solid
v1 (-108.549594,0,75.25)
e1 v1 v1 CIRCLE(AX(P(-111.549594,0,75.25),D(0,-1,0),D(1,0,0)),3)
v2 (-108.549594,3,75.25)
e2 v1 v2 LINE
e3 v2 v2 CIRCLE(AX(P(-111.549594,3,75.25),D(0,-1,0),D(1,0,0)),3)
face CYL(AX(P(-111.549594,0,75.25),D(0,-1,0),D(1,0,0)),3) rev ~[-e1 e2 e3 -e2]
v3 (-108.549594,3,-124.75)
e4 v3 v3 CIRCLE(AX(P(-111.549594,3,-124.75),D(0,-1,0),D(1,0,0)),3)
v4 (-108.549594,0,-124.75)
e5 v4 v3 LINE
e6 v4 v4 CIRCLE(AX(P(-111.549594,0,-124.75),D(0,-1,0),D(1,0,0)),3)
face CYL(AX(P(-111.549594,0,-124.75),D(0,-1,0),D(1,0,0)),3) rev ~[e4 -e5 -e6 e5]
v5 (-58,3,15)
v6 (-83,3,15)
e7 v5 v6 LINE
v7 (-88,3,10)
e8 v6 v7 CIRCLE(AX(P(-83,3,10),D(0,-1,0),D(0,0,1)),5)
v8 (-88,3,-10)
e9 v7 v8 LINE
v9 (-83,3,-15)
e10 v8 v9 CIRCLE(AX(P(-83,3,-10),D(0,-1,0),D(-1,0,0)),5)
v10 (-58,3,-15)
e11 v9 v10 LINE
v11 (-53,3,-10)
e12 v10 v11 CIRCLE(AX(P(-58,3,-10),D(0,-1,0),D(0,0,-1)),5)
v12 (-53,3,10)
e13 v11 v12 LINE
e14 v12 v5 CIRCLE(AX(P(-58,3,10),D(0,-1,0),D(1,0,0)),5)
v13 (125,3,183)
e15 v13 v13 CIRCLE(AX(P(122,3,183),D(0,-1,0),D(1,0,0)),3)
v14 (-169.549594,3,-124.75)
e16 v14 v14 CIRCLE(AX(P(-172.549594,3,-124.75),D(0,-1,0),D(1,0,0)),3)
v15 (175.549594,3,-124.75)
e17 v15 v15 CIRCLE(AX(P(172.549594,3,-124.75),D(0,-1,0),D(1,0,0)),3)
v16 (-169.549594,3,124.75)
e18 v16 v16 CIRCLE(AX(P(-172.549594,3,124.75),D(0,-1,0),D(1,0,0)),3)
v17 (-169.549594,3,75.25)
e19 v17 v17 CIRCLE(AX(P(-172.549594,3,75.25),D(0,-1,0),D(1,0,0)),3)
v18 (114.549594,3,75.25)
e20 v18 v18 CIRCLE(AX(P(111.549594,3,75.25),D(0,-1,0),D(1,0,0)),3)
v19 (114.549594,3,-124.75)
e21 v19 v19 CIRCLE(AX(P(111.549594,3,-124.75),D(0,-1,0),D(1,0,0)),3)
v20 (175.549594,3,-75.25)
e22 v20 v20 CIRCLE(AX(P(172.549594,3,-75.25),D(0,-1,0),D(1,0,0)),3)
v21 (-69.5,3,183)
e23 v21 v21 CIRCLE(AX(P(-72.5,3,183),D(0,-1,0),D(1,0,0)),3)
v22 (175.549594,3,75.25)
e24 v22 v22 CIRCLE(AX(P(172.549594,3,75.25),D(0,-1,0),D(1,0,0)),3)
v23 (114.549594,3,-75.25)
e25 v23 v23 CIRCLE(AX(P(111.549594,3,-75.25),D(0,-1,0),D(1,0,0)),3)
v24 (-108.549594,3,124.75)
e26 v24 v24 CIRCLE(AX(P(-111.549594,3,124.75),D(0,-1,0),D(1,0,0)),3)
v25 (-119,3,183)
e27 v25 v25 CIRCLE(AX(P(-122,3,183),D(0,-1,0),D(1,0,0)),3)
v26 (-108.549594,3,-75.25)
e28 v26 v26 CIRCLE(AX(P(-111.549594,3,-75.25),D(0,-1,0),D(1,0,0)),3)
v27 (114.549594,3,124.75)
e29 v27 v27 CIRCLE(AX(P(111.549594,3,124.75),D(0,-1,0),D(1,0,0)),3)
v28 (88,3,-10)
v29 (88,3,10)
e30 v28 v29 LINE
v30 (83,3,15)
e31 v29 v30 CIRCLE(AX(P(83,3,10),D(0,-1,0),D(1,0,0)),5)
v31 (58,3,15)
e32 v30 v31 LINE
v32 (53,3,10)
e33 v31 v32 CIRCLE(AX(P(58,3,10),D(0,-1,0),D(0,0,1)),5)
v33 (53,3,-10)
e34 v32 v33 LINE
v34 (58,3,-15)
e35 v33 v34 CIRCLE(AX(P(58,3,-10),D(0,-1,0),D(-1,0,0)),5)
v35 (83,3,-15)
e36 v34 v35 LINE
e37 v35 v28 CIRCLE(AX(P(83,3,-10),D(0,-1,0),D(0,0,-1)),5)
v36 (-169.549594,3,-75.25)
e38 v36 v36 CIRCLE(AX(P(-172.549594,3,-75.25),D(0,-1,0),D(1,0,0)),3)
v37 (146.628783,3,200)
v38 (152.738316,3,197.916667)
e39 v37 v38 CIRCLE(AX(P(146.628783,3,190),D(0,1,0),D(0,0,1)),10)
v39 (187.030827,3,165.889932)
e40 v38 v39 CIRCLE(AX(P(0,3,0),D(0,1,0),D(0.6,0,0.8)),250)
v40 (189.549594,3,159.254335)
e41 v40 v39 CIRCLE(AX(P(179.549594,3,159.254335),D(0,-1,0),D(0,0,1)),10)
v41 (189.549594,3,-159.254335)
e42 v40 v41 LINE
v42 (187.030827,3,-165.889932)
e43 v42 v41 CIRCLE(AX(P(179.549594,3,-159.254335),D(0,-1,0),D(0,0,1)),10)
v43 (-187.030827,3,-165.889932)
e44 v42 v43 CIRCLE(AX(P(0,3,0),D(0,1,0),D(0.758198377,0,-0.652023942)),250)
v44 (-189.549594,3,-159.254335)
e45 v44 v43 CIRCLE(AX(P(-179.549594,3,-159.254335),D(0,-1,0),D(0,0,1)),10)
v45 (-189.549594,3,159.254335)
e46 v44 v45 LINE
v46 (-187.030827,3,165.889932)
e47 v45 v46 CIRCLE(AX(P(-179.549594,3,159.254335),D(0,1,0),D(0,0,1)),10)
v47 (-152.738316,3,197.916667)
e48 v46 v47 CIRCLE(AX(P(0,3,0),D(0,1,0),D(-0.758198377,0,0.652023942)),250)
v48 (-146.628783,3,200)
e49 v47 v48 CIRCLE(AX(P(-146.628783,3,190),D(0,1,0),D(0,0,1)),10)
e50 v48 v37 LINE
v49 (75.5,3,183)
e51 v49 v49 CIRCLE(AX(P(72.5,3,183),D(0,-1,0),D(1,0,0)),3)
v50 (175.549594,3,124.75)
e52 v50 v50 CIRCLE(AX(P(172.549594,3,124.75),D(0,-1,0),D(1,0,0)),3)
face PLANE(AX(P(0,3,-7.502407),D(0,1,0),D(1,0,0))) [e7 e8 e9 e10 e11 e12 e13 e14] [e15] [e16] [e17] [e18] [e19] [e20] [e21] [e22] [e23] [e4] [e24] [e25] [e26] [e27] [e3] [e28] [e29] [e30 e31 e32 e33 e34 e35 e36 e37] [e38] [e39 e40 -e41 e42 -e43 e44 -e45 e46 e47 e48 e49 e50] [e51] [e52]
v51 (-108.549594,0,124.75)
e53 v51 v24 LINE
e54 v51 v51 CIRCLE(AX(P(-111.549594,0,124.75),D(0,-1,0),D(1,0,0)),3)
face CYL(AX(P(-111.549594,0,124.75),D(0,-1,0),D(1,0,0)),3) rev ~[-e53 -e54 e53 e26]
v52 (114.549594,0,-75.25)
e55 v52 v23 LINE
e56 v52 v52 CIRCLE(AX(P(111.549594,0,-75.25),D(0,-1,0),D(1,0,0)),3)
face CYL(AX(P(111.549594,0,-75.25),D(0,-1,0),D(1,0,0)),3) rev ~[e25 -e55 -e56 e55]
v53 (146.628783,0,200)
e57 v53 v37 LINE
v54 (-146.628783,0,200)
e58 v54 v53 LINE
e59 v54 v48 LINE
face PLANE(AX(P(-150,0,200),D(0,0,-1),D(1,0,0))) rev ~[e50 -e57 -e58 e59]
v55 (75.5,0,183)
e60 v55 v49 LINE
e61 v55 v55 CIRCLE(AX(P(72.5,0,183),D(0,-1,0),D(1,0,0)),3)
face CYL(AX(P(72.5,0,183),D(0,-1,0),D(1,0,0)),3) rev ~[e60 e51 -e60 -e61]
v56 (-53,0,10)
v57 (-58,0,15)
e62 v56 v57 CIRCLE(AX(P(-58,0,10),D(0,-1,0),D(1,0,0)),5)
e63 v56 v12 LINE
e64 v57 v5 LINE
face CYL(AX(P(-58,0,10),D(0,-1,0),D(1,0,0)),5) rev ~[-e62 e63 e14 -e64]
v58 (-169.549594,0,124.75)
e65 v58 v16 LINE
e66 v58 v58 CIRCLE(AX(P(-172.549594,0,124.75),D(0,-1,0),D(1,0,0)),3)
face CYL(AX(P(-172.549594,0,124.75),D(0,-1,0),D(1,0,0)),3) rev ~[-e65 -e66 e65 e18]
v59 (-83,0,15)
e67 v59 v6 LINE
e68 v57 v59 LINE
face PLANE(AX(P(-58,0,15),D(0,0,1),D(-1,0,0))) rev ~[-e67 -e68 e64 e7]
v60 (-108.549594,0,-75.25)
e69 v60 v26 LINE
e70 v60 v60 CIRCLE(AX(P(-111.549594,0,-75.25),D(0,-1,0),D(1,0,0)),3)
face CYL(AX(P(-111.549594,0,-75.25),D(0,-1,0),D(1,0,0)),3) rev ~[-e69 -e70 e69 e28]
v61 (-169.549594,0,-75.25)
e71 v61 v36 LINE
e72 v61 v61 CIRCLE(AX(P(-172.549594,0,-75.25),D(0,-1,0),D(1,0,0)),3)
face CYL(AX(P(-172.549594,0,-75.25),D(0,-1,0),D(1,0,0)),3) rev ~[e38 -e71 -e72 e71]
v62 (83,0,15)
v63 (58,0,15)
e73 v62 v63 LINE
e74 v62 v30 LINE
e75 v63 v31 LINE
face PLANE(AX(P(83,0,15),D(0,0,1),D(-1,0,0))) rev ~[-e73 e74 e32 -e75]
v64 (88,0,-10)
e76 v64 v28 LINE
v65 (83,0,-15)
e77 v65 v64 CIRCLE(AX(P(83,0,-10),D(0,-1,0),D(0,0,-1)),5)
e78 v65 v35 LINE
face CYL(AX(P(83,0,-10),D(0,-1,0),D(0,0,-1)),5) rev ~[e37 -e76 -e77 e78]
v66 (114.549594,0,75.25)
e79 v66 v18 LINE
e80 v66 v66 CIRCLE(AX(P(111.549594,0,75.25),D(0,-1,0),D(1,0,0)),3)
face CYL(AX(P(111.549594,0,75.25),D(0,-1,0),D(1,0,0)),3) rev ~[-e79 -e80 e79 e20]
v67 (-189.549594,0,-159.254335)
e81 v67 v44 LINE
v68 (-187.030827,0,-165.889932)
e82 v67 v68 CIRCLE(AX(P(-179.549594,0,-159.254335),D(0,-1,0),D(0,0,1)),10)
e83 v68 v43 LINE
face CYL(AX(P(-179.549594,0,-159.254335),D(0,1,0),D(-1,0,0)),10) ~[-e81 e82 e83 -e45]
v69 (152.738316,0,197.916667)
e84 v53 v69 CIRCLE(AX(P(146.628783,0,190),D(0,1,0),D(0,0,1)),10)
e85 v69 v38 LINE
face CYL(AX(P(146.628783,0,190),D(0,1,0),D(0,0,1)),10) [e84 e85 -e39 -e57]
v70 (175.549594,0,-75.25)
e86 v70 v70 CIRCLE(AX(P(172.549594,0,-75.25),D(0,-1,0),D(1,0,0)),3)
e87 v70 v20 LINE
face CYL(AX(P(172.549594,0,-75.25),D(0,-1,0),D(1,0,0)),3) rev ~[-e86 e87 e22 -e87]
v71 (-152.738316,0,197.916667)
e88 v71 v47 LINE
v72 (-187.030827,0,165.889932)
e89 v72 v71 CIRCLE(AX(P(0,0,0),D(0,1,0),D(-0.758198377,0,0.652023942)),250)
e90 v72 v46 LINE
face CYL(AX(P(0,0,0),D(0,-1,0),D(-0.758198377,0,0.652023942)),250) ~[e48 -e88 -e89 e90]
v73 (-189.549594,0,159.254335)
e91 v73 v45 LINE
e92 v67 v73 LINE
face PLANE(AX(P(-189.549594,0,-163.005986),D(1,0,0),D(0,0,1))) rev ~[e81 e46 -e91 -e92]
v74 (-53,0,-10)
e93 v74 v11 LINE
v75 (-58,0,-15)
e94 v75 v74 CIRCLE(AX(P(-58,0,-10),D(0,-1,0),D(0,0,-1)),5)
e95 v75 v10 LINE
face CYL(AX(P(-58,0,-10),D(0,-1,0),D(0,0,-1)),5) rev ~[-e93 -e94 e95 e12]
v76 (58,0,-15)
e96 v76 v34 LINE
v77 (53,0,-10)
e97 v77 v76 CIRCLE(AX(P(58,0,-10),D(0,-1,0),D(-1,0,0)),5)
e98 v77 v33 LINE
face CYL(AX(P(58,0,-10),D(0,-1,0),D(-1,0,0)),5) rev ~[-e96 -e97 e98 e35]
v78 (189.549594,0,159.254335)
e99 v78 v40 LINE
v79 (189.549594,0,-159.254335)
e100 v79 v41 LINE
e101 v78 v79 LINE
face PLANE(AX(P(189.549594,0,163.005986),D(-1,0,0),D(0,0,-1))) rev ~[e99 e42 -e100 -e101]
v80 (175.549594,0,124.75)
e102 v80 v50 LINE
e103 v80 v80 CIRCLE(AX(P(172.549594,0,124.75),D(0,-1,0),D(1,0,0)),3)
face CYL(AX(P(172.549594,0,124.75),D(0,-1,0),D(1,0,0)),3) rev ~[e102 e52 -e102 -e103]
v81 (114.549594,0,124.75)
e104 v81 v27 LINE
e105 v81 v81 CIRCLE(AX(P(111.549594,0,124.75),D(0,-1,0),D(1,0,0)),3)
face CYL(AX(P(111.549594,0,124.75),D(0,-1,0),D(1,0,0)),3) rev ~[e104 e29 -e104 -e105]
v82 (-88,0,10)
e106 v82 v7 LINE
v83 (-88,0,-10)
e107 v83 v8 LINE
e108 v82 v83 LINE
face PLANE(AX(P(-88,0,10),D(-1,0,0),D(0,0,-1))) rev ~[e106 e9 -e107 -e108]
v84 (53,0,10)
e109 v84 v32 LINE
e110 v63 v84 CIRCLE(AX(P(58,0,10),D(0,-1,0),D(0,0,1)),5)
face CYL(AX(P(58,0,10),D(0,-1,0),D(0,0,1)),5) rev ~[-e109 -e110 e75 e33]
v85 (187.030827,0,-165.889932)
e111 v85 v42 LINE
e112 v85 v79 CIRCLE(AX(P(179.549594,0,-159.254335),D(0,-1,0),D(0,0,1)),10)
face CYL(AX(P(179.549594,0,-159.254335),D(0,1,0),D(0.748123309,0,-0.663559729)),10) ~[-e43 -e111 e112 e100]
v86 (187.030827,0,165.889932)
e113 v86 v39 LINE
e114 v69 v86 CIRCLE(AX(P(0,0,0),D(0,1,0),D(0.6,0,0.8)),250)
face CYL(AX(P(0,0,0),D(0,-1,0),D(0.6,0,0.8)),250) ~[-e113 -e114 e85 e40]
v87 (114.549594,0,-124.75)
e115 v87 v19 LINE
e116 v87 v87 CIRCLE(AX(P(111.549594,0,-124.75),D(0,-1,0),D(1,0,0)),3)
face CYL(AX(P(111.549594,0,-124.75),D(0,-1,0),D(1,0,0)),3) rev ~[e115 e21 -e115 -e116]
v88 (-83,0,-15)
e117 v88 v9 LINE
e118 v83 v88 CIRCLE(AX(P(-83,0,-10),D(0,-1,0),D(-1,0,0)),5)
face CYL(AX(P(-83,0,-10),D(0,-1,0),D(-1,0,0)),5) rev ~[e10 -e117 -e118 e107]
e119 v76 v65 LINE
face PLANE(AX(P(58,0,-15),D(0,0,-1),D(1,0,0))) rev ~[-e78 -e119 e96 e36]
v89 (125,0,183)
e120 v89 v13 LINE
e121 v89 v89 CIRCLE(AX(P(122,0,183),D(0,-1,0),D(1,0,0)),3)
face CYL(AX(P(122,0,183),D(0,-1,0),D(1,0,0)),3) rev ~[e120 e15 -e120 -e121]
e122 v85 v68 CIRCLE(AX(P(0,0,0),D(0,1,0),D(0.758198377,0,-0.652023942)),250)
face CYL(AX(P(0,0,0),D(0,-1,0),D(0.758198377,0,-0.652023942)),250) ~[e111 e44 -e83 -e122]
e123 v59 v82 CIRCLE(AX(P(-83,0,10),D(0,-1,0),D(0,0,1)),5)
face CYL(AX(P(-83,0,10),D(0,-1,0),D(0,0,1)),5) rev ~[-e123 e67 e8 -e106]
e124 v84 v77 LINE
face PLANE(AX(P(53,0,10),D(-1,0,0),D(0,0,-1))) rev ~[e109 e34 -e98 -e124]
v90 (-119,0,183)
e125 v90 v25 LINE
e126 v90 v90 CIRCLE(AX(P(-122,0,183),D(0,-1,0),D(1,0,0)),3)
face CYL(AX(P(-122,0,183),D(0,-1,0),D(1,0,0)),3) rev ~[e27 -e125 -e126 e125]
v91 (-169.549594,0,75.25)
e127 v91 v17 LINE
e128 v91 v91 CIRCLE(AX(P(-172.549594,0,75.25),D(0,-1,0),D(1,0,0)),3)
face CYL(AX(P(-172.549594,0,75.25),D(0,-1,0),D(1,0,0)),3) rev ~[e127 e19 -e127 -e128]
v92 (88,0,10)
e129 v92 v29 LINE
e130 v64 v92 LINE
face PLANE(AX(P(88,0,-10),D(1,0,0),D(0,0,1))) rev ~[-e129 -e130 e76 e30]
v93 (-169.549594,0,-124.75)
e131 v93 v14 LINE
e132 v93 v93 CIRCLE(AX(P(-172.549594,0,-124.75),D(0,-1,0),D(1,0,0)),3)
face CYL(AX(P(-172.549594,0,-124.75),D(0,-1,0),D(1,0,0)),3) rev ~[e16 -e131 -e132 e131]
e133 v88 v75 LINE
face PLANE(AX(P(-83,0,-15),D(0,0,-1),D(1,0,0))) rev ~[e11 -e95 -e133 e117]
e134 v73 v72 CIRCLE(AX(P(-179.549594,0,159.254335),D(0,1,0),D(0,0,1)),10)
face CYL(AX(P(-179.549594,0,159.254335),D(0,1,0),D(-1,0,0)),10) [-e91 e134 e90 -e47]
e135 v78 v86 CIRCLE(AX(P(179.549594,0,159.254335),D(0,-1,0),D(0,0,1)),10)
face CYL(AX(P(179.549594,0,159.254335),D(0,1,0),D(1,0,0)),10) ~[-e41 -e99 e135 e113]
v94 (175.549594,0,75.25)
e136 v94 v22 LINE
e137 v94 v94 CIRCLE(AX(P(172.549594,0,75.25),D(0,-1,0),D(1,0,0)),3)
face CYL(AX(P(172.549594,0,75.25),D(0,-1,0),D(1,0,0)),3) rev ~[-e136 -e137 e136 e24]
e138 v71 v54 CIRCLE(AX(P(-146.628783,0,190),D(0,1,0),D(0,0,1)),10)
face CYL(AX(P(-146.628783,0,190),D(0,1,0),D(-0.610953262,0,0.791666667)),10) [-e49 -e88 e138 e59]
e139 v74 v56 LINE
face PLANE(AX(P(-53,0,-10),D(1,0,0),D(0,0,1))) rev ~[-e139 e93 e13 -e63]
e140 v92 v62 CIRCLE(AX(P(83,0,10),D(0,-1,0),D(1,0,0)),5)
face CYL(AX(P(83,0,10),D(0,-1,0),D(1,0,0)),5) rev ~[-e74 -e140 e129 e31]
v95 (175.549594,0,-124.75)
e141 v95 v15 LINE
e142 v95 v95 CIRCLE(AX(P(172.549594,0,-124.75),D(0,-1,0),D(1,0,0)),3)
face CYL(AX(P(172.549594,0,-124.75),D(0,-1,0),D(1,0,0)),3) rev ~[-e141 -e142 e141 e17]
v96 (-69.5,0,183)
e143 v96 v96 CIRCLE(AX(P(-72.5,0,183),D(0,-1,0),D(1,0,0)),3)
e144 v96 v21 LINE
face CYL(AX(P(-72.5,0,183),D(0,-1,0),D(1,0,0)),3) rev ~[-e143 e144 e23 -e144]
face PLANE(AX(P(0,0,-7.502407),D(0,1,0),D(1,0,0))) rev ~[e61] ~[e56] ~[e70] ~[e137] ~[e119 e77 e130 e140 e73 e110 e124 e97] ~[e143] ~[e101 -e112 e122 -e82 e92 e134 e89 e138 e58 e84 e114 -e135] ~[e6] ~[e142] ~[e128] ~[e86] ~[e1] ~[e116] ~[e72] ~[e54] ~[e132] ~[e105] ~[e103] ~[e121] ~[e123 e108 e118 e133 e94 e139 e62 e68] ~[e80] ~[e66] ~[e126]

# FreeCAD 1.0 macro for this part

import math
import FreeCAD as App
import Part
import Sketcher

V = App.Vector


def edges_at(feature, points):
    """Names of the edges that pass closest to the given points."""
    edges = feature.Shape.Edges
    near = lambda p: min(range(len(edges)), key=lambda i: edges[i].distToShape(Part.Vertex(*p))[0])
    return sorted({f"Edge{near(p) + 1}" for p in points})

doc = App.newDocument("Part")
body = doc.addObject("PartDesign::Body", "Body")

sketch1 = doc.addObject("Sketcher::SketchObject", "Sketch")
body.addObject(sketch1)
sketch1.AttachmentSupport = (doc.XZ_Plane, [""])
sketch1.MapMode = "FlatFace"
sketch1.addGeometry([
    Part.LineSegment(V(-189.549594, -163.005986, 0), V(-189.549594, 163.005986, 0)),
    Part.ArcOfCircle(Part.Circle(V(0, 0, 0), V(0, 0, 1), 250), math.radians(126.869898), math.radians(139.305627)),
    Part.LineSegment(V(-150, 200, 0), V(150, 200, 0)),
    Part.ArcOfCircle(Part.Circle(V(0, 0, 0), V(0, 0, 1), 250), math.radians(40.694373), math.radians(53.130102)),
    Part.LineSegment(V(189.549594, 163.005986, 0), V(189.549594, -163.005986, 0)),
    Part.ArcOfCircle(Part.Circle(V(0, 0, 0), V(0, 0, 1), 250), math.radians(-139.305627), math.radians(-40.694373)),
    Part.LineSegment(V(-58, 15, 0), V(-83, 15, 0)),
    Part.ArcOfCircle(Part.Circle(V(-83, 10, 0), V(0, 0, 1), 5), math.radians(90), math.radians(180)),
    Part.LineSegment(V(-88, 10, 0), V(-88, -10, 0)),
    Part.ArcOfCircle(Part.Circle(V(-83, -10, 0), V(0, 0, 1), 5), math.radians(180), math.radians(270)),
    Part.LineSegment(V(-83, -15, 0), V(-58, -15, 0)),
    Part.ArcOfCircle(Part.Circle(V(-58, -10, 0), V(0, 0, 1), 5), math.radians(-90), math.radians(0)),
    Part.LineSegment(V(-53, -10, 0), V(-53, 10, 0)),
    Part.ArcOfCircle(Part.Circle(V(-58, 10, 0), V(0, 0, 1), 5), math.radians(0), math.radians(90)),
    Part.ArcOfCircle(Part.Circle(V(58, 10, 0), V(0, 0, 1), 5), math.radians(90), math.radians(180)),
    Part.LineSegment(V(53, 10, 0), V(53, -10, 0)),
    Part.ArcOfCircle(Part.Circle(V(58, -10, 0), V(0, 0, 1), 5), math.radians(180), math.radians(270)),
    Part.LineSegment(V(58, -15, 0), V(83, -15, 0)),
    Part.ArcOfCircle(Part.Circle(V(83, -10, 0), V(0, 0, 1), 5), math.radians(-90), math.radians(0)),
    Part.LineSegment(V(88, -10, 0), V(88, 10, 0)),
    Part.ArcOfCircle(Part.Circle(V(83, 10, 0), V(0, 0, 1), 5), math.radians(0), math.radians(90)),
    Part.LineSegment(V(83, 15, 0), V(58, 15, 0)),
], False)
sketch1.addConstraint([
    Sketcher.Constraint("Coincident", 0, 2, 1, 2),
    Sketcher.Constraint("Coincident", 1, 1, 2, 1),
    Sketcher.Constraint("Coincident", 2, 2, 3, 2),
    Sketcher.Constraint("Coincident", 3, 1, 4, 1),
    Sketcher.Constraint("Coincident", 4, 2, 5, 2),
    Sketcher.Constraint("Coincident", 5, 1, 0, 1),
    Sketcher.Constraint("Tangent", 6, 2, 7, 1),
    Sketcher.Constraint("Tangent", 7, 2, 8, 1),
    Sketcher.Constraint("Tangent", 8, 2, 9, 1),
    Sketcher.Constraint("Tangent", 9, 2, 10, 1),
    Sketcher.Constraint("Tangent", 10, 2, 11, 1),
    Sketcher.Constraint("Tangent", 11, 2, 12, 1),
    Sketcher.Constraint("Tangent", 12, 2, 13, 1),
    Sketcher.Constraint("Tangent", 13, 2, 6, 1),
    Sketcher.Constraint("Tangent", 14, 2, 15, 1),
    Sketcher.Constraint("Tangent", 15, 2, 16, 1),
    Sketcher.Constraint("Tangent", 16, 2, 17, 1),
    Sketcher.Constraint("Tangent", 17, 2, 18, 1),
    Sketcher.Constraint("Tangent", 18, 2, 19, 1),
    Sketcher.Constraint("Tangent", 19, 2, 20, 1),
    Sketcher.Constraint("Tangent", 20, 2, 21, 1),
    Sketcher.Constraint("Tangent", 21, 2, 14, 1),
    Sketcher.Constraint("Vertical", 0),
    Sketcher.Constraint("Horizontal", 2),
    Sketcher.Constraint("Vertical", 4),
    Sketcher.Constraint("Horizontal", 6),
    Sketcher.Constraint("Vertical", 8),
    Sketcher.Constraint("Horizontal", 10),
    Sketcher.Constraint("Vertical", 12),
    Sketcher.Constraint("Vertical", 15),
    Sketcher.Constraint("Horizontal", 17),
    Sketcher.Constraint("Vertical", 19),
    Sketcher.Constraint("Horizontal", 21),
    Sketcher.Constraint("Coincident", 1, 3, -1, 1),
    Sketcher.Constraint("Coincident", 3, 3, -1, 1),
    Sketcher.Constraint("Coincident", 5, 3, -1, 1),
    Sketcher.Constraint("Equal", 1, 3),
    Sketcher.Constraint("Equal", 3, 5),
    Sketcher.Constraint("Equal", 7, 9),
    Sketcher.Constraint("Equal", 9, 11),
    Sketcher.Constraint("Equal", 11, 13),
    Sketcher.Constraint("Equal", 13, 14),
    Sketcher.Constraint("Equal", 14, 16),
    Sketcher.Constraint("Equal", 16, 18),
    Sketcher.Constraint("Equal", 18, 20),
    Sketcher.Constraint("Symmetric", 11, 3, 14, 3, -1, 1),
    Sketcher.Constraint("Symmetric", 7, 3, 18, 3, -1, 1),
    Sketcher.Constraint("Horizontal", 13, 3, 14, 3),
    Sketcher.Constraint("Horizontal", 0, 2, 3, 1),
    Sketcher.Constraint("Radius", 1, 250.0),
    Sketcher.Constraint("Radius", 7, 5.0),
    Sketcher.Constraint("DistanceX", 2, 1, 2, 2, 300.0),
    Sketcher.Constraint("DistanceX", 6, 2, 6, 1, 25.0),
    Sketcher.Constraint("DistanceY", 8, 2, 8, 1, 20.0),
    Sketcher.Constraint("DistanceX", 7, 3, -1, 1, 83.0),
    Sketcher.Constraint("DistanceY", 0, 1, 0, 2, 326.011971),
])
pad1 = doc.addObject("PartDesign::Pad", "Pad")
body.addObject(pad1)
pad1.Profile = sketch1
pad1.Length = 3
pad1.Reversed = True
doc.recompute()

fillet = doc.addObject("PartDesign::Fillet", "Fillet")
body.addObject(fillet)
fillet.Base = (pad1, edges_at(pad1, [
    (189.55, 1.5, 163.006),
    (150, 1.5, 200),
    (-150, 1.5, 200),
    (-189.55, 1.5, 163.006),
    (-189.55, 1.5, -163.006),
    (189.55, 1.5, -163.006),
]))
fillet.Radius = 10

sketch2 = doc.addObject("Sketcher::SketchObject", "Sketch001")
body.addObject(sketch2)
sketch2.AttachmentSupport = (doc.XZ_Plane, [""])
sketch2.MapMode = "FlatFace"
sketch2.addGeometry([
    Part.Circle(V(-172.549594, -124.75, 0), V(0, 0, 1), 3),
    Part.Circle(V(-172.549594, -75.25, 0), V(0, 0, 1), 3),
    Part.Circle(V(-111.549594, -124.75, 0), V(0, 0, 1), 3),
    Part.Circle(V(-111.549594, -75.25, 0), V(0, 0, 1), 3),
    Part.Circle(V(111.549594, -75.25, 0), V(0, 0, 1), 3),
    Part.Circle(V(172.549594, -75.25, 0), V(0, 0, 1), 3),
    Part.Circle(V(172.549594, -124.75, 0), V(0, 0, 1), 3),
    Part.Circle(V(111.549594, -124.75, 0), V(0, 0, 1), 3),
    Part.Circle(V(172.549594, 75.25, 0), V(0, 0, 1), 3),
    Part.Circle(V(172.549594, 124.75, 0), V(0, 0, 1), 3),
    Part.Circle(V(111.549594, 124.75, 0), V(0, 0, 1), 3),
    Part.Circle(V(111.549594, 75.25, 0), V(0, 0, 1), 3),
    Part.Circle(V(-172.549594, 75.25, 0), V(0, 0, 1), 3),
    Part.Circle(V(-111.549594, 75.25, 0), V(0, 0, 1), 3),
    Part.Circle(V(-111.549594, 124.75, 0), V(0, 0, 1), 3),
    Part.Circle(V(-172.549594, 124.75, 0), V(0, 0, 1), 3),
    Part.Circle(V(-122, 183, 0), V(0, 0, 1), 3),
    Part.Circle(V(-72.5, 183, 0), V(0, 0, 1), 3),
    Part.Circle(V(72.5, 183, 0), V(0, 0, 1), 3),
    Part.Circle(V(122, 183, 0), V(0, 0, 1), 3),
], False)
sketch2.addConstraint([
    Sketcher.Constraint("Equal", 0, 1),
    Sketcher.Constraint("Equal", 1, 2),
    Sketcher.Constraint("Equal", 2, 3),
    Sketcher.Constraint("Equal", 3, 4),
    Sketcher.Constraint("Equal", 4, 5),
    Sketcher.Constraint("Equal", 5, 6),
    Sketcher.Constraint("Equal", 6, 7),
    Sketcher.Constraint("Equal", 7, 8),
    Sketcher.Constraint("Equal", 8, 9),
    Sketcher.Constraint("Equal", 9, 10),
    Sketcher.Constraint("Equal", 10, 11),
    Sketcher.Constraint("Equal", 11, 12),
    Sketcher.Constraint("Equal", 12, 13),
    Sketcher.Constraint("Equal", 13, 14),
    Sketcher.Constraint("Equal", 14, 15),
    Sketcher.Constraint("Equal", 15, 16),
    Sketcher.Constraint("Equal", 16, 17),
    Sketcher.Constraint("Equal", 17, 18),
    Sketcher.Constraint("Equal", 18, 19),
    Sketcher.Constraint("Symmetric", 1, 3, 8, 3, -1, 1),
    Sketcher.Constraint("Symmetric", 0, 3, 9, 3, -1, 1),
    Sketcher.Constraint("Symmetric", 2, 3, 10, 3, -1, 1),
    Sketcher.Constraint("Symmetric", 3, 3, 11, 3, -1, 1),
    Sketcher.Constraint("Symmetric", 5, 3, 12, 3, -1, 1),
    Sketcher.Constraint("Symmetric", 4, 3, 13, 3, -1, 1),
    Sketcher.Constraint("Symmetric", 7, 3, 14, 3, -1, 1),
    Sketcher.Constraint("Symmetric", 6, 3, 15, 3, -1, 1),
    Sketcher.Constraint("Symmetric", 3, 3, 4, 3, -2),
    Sketcher.Constraint("Symmetric", 1, 3, 5, 3, -2),
    Sketcher.Constraint("Symmetric", 0, 3, 6, 3, -2),
    Sketcher.Constraint("Symmetric", 2, 3, 7, 3, -2),
    Sketcher.Constraint("Symmetric", 17, 3, 18, 3, -2),
    Sketcher.Constraint("Symmetric", 16, 3, 19, 3, -2),
    Sketcher.Constraint("Horizontal", 0, 3, 2, 3),
    Sketcher.Constraint("Horizontal", 1, 3, 3, 3),
    Sketcher.Constraint("Horizontal", 16, 3, 17, 3),
    Sketcher.Constraint("Vertical", 0, 3, 1, 3),
    Sketcher.Constraint("Vertical", 2, 3, 3, 3),
    Sketcher.Constraint("Diameter", 0, 6.0),
    Sketcher.Constraint("DistanceX", 16, 3, -1, 1, 122.0),
    Sketcher.Constraint("DistanceY", -1, 1, 16, 3, 183.0),
    Sketcher.Constraint("DistanceX", 0, 3, 2, 3, 61.0),
    Sketcher.Constraint("DistanceY", 6, 3, 8, 3, 200.0),
    Sketcher.Constraint("DistanceX", 17, 3, 18, 3, 145.0),
    Sketcher.Constraint("DistanceY", 0, 3, 1, 3, 49.5),
    Sketcher.Constraint("DistanceX", 3, 3, 4, 3, 223.099189),
])
pocket1 = doc.addObject("PartDesign::Pocket", "Pocket")
body.addObject(pocket1)
pocket1.Profile = sketch2
pocket1.Type = "ThroughAll"
pocket1.Midplane = True

doc.recompute()
